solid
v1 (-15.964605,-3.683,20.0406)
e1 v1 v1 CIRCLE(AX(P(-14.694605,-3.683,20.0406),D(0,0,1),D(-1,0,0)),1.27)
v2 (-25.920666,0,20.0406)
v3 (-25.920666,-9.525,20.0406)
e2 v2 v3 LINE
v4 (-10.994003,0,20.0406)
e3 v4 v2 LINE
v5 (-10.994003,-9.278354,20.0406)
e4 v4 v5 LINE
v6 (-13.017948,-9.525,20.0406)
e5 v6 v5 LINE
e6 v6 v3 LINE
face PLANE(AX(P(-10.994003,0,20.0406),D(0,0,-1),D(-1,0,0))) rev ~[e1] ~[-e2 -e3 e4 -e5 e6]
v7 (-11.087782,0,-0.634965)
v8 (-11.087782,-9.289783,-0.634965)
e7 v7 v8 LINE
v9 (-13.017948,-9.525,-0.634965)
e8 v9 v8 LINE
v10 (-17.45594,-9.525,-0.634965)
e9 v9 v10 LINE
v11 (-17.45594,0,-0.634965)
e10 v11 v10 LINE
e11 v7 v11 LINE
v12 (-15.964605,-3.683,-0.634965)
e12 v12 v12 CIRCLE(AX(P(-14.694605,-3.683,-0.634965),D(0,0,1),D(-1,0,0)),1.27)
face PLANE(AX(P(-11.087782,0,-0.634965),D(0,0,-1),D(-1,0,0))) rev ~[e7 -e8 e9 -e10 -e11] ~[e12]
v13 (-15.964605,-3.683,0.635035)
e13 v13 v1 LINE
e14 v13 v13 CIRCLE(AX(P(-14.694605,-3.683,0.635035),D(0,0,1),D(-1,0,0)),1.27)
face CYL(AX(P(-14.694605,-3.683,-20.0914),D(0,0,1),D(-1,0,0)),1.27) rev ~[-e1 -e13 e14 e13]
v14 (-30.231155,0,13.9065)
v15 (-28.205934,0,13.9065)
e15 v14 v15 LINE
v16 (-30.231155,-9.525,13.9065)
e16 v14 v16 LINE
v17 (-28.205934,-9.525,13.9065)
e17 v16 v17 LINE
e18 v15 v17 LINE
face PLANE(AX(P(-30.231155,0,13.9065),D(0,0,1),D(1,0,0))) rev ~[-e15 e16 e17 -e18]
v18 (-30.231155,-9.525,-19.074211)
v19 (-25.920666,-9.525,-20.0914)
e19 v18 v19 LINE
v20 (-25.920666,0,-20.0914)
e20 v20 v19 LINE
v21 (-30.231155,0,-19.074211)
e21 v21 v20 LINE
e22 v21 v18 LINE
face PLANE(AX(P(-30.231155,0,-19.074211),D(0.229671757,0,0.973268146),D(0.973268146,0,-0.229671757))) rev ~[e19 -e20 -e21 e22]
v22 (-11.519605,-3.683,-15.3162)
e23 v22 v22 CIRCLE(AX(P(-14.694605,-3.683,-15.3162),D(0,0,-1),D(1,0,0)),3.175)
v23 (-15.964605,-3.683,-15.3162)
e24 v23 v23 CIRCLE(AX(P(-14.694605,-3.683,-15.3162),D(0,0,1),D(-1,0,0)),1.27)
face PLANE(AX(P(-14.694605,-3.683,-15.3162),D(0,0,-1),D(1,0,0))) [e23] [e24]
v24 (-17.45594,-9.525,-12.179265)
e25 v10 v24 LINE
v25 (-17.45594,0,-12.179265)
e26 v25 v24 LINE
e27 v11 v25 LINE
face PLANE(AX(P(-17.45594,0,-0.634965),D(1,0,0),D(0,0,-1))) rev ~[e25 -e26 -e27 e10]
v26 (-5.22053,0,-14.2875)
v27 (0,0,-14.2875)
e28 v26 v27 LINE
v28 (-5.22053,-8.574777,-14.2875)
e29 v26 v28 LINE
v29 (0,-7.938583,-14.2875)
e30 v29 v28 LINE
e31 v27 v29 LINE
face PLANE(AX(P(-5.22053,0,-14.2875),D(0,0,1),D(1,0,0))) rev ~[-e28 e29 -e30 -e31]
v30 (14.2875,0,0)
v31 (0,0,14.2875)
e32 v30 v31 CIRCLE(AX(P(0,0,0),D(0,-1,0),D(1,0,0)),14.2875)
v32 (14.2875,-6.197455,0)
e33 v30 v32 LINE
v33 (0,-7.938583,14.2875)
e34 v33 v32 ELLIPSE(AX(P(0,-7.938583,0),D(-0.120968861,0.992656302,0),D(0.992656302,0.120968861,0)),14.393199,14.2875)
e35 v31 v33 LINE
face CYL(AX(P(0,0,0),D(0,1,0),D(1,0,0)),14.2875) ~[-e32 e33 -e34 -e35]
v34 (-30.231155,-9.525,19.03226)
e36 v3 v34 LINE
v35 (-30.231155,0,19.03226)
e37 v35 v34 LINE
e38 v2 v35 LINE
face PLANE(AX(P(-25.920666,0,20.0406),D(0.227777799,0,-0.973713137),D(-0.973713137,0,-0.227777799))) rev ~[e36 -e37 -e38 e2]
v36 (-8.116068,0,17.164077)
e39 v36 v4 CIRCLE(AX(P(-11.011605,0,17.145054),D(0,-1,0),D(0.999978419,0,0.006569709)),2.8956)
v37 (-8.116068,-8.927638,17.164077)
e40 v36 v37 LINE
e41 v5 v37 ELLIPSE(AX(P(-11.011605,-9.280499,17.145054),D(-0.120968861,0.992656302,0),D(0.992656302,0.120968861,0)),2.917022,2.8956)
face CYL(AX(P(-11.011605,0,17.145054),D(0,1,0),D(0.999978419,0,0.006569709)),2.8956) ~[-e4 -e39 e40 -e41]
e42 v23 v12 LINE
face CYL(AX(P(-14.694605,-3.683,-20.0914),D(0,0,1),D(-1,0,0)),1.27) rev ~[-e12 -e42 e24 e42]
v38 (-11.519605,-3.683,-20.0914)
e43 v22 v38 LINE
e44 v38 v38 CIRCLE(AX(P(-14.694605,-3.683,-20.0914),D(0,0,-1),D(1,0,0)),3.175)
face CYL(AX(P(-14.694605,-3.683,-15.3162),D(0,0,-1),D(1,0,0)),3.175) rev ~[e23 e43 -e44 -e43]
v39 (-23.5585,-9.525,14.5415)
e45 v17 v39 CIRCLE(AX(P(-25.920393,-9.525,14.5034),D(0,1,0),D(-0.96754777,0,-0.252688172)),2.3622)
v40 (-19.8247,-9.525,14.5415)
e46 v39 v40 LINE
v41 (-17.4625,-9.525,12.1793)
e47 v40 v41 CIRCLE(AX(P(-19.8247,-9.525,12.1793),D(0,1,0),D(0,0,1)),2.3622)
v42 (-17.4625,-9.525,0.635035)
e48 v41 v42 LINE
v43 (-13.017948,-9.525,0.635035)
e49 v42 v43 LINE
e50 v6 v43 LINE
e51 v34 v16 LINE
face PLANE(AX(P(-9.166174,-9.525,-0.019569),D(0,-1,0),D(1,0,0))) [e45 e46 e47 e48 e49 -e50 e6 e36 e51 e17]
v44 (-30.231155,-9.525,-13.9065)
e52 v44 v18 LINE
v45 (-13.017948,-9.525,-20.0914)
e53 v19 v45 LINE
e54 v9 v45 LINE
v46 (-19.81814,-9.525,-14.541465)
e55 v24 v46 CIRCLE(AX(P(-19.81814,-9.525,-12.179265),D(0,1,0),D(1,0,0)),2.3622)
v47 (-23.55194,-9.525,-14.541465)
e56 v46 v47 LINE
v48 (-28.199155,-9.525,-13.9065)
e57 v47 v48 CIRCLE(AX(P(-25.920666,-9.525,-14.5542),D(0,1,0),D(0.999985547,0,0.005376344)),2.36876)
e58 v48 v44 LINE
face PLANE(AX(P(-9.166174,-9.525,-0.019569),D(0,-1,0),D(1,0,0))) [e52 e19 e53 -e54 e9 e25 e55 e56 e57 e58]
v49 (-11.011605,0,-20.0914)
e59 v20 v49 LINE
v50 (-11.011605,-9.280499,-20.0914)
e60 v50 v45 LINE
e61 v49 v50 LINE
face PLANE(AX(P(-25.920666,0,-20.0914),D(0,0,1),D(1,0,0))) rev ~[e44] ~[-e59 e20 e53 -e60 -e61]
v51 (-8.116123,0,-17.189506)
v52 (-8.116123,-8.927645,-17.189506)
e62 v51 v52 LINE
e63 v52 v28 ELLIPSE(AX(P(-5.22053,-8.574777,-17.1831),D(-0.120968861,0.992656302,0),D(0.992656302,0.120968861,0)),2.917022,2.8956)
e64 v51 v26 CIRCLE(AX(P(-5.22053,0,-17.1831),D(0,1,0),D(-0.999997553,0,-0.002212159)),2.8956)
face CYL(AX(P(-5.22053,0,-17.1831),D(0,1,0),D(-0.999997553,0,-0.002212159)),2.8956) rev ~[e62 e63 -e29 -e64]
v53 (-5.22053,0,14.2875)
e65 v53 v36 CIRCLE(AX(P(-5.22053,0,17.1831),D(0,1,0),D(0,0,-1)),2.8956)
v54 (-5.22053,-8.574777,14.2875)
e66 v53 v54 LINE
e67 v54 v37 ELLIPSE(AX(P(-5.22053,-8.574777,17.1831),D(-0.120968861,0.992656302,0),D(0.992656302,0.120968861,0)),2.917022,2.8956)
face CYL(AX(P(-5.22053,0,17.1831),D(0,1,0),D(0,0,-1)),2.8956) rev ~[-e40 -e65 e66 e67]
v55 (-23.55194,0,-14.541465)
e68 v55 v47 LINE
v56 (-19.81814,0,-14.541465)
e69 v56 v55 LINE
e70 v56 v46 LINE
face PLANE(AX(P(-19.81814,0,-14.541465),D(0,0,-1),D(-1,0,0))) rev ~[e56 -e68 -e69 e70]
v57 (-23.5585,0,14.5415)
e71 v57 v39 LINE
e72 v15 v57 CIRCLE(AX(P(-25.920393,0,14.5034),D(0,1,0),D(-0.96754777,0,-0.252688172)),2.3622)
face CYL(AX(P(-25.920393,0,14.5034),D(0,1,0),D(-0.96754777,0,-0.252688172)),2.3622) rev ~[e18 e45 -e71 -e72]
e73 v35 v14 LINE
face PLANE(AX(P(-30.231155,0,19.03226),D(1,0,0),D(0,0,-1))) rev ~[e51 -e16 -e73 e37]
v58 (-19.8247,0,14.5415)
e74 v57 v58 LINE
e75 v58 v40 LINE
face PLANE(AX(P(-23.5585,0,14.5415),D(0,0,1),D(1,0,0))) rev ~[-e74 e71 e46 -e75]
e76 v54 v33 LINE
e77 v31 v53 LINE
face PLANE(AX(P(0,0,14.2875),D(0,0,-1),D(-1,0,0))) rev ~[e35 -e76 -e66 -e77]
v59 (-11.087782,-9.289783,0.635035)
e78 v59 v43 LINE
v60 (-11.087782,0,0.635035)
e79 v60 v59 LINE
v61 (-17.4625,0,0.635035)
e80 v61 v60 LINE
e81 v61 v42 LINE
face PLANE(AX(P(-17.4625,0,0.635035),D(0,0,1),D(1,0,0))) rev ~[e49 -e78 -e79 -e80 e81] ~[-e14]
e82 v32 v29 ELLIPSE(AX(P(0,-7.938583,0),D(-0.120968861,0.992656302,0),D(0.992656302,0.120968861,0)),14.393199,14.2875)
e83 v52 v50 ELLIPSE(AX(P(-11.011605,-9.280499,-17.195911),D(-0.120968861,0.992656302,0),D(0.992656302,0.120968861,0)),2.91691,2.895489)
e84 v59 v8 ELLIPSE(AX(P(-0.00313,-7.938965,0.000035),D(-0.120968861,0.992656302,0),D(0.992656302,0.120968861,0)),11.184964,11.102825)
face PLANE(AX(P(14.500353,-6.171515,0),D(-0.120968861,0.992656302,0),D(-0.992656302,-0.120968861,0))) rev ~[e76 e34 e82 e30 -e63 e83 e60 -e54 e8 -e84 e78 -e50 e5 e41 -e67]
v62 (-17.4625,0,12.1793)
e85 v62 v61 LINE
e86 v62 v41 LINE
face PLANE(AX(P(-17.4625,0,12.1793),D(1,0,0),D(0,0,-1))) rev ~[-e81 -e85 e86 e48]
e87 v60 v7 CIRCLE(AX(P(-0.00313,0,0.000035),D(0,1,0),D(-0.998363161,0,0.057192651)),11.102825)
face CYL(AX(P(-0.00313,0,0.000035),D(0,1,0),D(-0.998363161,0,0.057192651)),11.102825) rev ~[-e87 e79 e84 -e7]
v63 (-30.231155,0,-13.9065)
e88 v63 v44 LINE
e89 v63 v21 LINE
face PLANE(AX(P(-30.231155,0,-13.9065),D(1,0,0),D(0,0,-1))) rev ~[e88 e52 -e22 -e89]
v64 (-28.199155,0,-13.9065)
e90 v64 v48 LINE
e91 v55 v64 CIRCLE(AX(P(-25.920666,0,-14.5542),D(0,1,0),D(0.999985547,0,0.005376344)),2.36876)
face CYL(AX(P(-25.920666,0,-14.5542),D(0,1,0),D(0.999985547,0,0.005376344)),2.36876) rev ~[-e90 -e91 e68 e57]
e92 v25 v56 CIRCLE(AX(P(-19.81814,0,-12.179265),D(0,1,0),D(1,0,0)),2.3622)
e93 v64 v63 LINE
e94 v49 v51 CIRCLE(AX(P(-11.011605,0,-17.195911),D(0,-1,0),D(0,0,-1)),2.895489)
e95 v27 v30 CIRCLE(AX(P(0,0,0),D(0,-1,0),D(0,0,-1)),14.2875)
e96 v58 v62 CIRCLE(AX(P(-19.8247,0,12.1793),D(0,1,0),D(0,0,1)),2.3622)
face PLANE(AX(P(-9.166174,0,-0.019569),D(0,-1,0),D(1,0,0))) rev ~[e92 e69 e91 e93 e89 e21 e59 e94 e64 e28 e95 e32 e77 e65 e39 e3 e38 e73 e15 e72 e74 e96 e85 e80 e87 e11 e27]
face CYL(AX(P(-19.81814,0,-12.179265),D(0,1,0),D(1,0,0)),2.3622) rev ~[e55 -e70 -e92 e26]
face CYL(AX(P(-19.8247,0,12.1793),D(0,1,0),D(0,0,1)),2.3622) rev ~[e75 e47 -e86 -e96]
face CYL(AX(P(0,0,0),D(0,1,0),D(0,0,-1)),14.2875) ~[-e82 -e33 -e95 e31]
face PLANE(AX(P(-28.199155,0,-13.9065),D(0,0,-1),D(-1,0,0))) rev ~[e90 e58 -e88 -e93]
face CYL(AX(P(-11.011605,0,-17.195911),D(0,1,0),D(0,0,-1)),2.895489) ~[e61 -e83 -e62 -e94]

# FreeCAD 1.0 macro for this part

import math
import FreeCAD as App
import Part
import Sketcher
Q = App.Units.Quantity


def add_polygon(sketch, points):
    """Adds a closed chain of lines whose ends are joined by coincident constraints."""
    first, n = sketch.GeometryCount, len(points)
    for a, b in zip(points, points[1:] + points[:1]):
        sketch.addGeometry(Part.LineSegment(App.Vector(*a, 0), App.Vector(*b, 0)), False)
    for i in range(n):
        sketch.addConstraint(Sketcher.Constraint("Coincident", first + i, 2, first + (i + 1) % n, 1))

doc = App.newDocument("Part")
body = doc.addObject("PartDesign::Body", "Body")

# Sketch on XZ plane
sketch1 = doc.addObject("Sketcher::SketchObject", "Sketch")
body.addObject(sketch1)
sketch1.AttachmentSupport = (doc.XZ_Plane, [""])
sketch1.MapMode = "FlatFace"
sketch1.addGeometry([
    Part.ArcOfCircle(Part.Circle(App.Vector(-25.9, 14.5, 0), App.Vector(0, 0, 1), 2.4), math.radians(1), math.radians(195)),  # 0
    Part.LineSegment(App.Vector(-23.6, 14.5, 0), App.Vector(-19.8, 14.5, 0)),  # 1
    Part.ArcOfCircle(Part.Circle(App.Vector(-19.8, 12.2, 0), App.Vector(0, 0, 1), 2.4), math.radians(0), math.radians(90)),  # 2
    Part.LineSegment(App.Vector(-17.5, 12.2, 0), App.Vector(-17.5, 0.6, 0)),  # 3
    Part.LineSegment(App.Vector(-17.5, 0.6, 0), App.Vector(-11.1, 0.6, 0)),  # 4
    Part.ArcOfCircle(Part.Circle(App.Vector(0, 0, 0), App.Vector(0, 0, 1), 11.1), math.radians(-177), math.radians(177)),  # 5
    Part.LineSegment(App.Vector(-11.1, -0.6, 0), App.Vector(-17.5, -0.6, 0)),  # 6
    Part.LineSegment(App.Vector(-17.5, -0.6, 0), App.Vector(-17.5, -12.2, 0)),  # 7
    Part.ArcOfCircle(Part.Circle(App.Vector(-19.8, -12.2, 0), App.Vector(0, 0, 1), 2.4), math.radians(-90), math.radians(0)),  # 8
    Part.LineSegment(App.Vector(-19.8, -14.5, 0), App.Vector(-23.6, -14.5, 0)),  # 9
    Part.ArcOfCircle(Part.Circle(App.Vector(-25.9, -14.6, 0), App.Vector(0, 0, 1), 2.4), math.radians(164), math.radians(360)),  # 10
    Part.LineSegment(App.Vector(-28.2, -13.9, 0), App.Vector(-30.2, -13.9, 0)),  # 11
    Part.LineSegment(App.Vector(-30.2, -13.9, 0), App.Vector(-30.2, -19.1, 0)),  # 12
    Part.LineSegment(App.Vector(-30.2, -19.1, 0), App.Vector(-25.9, -20.1, 0)),  # 13
    Part.LineSegment(App.Vector(-25.9, -20.1, 0), App.Vector(-11, -20.1, 0)),  # 14
    Part.ArcOfCircle(Part.Circle(App.Vector(-11, -17.2, 0), App.Vector(0, 0, 1), 2.9), math.radians(-90), math.radians(0)),  # 15
    Part.ArcOfCircle(Part.Circle(App.Vector(-5.2, -17.2, 0), App.Vector(0, 0, 1), 2.9), math.radians(90), math.radians(180)),  # 16
    Part.LineSegment(App.Vector(-5.2, -14.3, 0), App.Vector(0, -14.3, 0)),  # 17
    Part.ArcOfCircle(Part.Circle(App.Vector(0, 0, 0), App.Vector(0, 0, 1), 14.3), math.radians(-90), math.radians(0)),  # 18
    Part.ArcOfCircle(Part.Circle(App.Vector(0, 0, 0), App.Vector(0, 0, 1), 14.3), math.radians(0), math.radians(90)),  # 19
    Part.LineSegment(App.Vector(0, 14.3, 0), App.Vector(-5.2, 14.3, 0)),  # 20
    Part.ArcOfCircle(Part.Circle(App.Vector(-5.2, 17.2, 0), App.Vector(0, 0, 1), 2.9), math.radians(-180), math.radians(-90)),  # 21
    Part.ArcOfCircle(Part.Circle(App.Vector(-11, 17.1, 0), App.Vector(0, 0, 1), 2.9), math.radians(0), math.radians(90)),  # 22
    Part.LineSegment(App.Vector(-11, 20, 0), App.Vector(-25.9, 20, 0)),  # 23
    Part.LineSegment(App.Vector(-25.9, 20, 0), App.Vector(-30.2, 19, 0)),  # 24
    Part.LineSegment(App.Vector(-30.2, 19, 0), App.Vector(-30.2, 13.9, 0)),  # 25
    Part.LineSegment(App.Vector(-30.2, 13.9, 0), App.Vector(-28.2, 13.9, 0)),  # 26
], False)
sketch1.addConstraint([
    Sketcher.Constraint("Coincident", 0, 1, 1, 1),
    Sketcher.Constraint("Tangent", 1, 2, 2, 2),
    Sketcher.Constraint("Tangent", 2, 1, 3, 1),
    Sketcher.Constraint("Coincident", 3, 2, 4, 1),
    Sketcher.Constraint("Coincident", 4, 2, 5, 2),
    Sketcher.Constraint("Coincident", 5, 1, 6, 1),
    Sketcher.Constraint("Coincident", 6, 2, 7, 1),
    Sketcher.Constraint("Tangent", 7, 2, 8, 2),
    Sketcher.Constraint("Tangent", 8, 1, 9, 1),
    Sketcher.Constraint("Coincident", 9, 2, 10, 2),
    Sketcher.Constraint("Coincident", 10, 1, 11, 1),
    Sketcher.Constraint("Coincident", 11, 2, 12, 1),
    Sketcher.Constraint("Coincident", 12, 2, 13, 1),
    Sketcher.Constraint("Coincident", 13, 2, 14, 1),
    Sketcher.Constraint("Tangent", 14, 2, 15, 1),
    Sketcher.Constraint("Tangent", 15, 2, 16, 2),
    Sketcher.Constraint("Tangent", 16, 1, 17, 1),
    Sketcher.Constraint("Tangent", 17, 2, 18, 1),
    Sketcher.Constraint("Tangent", 18, 2, 19, 1),
    Sketcher.Constraint("Tangent", 19, 2, 20, 1),
    Sketcher.Constraint("Tangent", 20, 2, 21, 2),
    Sketcher.Constraint("Tangent", 21, 1, 22, 1),
    Sketcher.Constraint("Coincident", 22, 2, 23, 1),
    Sketcher.Constraint("Coincident", 23, 2, 24, 1),
    Sketcher.Constraint("Coincident", 24, 2, 25, 1),
    Sketcher.Constraint("Coincident", 25, 2, 26, 1),
    Sketcher.Constraint("Coincident", 26, 2, 0, 2),
    Sketcher.Constraint("Horizontal", 1),
    Sketcher.Constraint("Vertical", 3),
    Sketcher.Constraint("Horizontal", 4),
    Sketcher.Constraint("Horizontal", 6),
    Sketcher.Constraint("Vertical", 7),
    Sketcher.Constraint("Horizontal", 9),
    Sketcher.Constraint("Horizontal", 11),
    Sketcher.Constraint("Vertical", 12),
    Sketcher.Constraint("Horizontal", 14),
    Sketcher.Constraint("Horizontal", 17),
    Sketcher.Constraint("Horizontal", 20),
    Sketcher.Constraint("Horizontal", 23),
    Sketcher.Constraint("Vertical", 25),
    Sketcher.Constraint("Horizontal", 26),
    Sketcher.Constraint("Coincident", 18, 3, -1, 1),
    Sketcher.Constraint("Equal", 0, 2),
    Sketcher.Constraint("Equal", 2, 8),
    Sketcher.Constraint("Equal", 18, 19),
    Sketcher.Constraint("Equal", 16, 21),
    Sketcher.Constraint("Equal", 21, 22),
    Sketcher.Constraint("Symmetric", 11, 2, 25, 2, -1),
    Sketcher.Constraint("PointOnObject", 18, 2, -1),
    Sketcher.Constraint("Vertical", 16, 3, 21, 3),
    Sketcher.Constraint("Vertical", 15, 3, 22, 3),
    Sketcher.Constraint("Vertical", 4, 2, 5, 1),
    Sketcher.Constraint("Vertical", 10, 3, 13, 2),
    Sketcher.Constraint("Vertical", 13, 2, 23, 2),
    Sketcher.Constraint("Equal", 1, 9),
    Sketcher.Constraint("Radius", 0, Q("0.093 in")),
    Sketcher.Constraint("Radius", 16, Q("0.114 in")),
    Sketcher.Constraint("Radius", 18, Q("0.5625 in")),
    Sketcher.Constraint("DistanceX", 11, 2, 11, 1, Q("0.08 in")),
    Sketcher.Constraint("DistanceX", 1, 1, 1, 2, Q("0.147 in")),
    Sketcher.Constraint("DistanceY", 5, 1, 4, 2, Q("0.05 in")),
    Sketcher.Constraint("DistanceY", 20, 2, 1, 2, Q("0.01 in")),
    Sketcher.Constraint("DistanceY", 7, 2, 7, 1, Q("0.4545 in")),
    Sketcher.Constraint("DistanceY", -1, 1, 0, 3, Q("0.571 in")),
    Sketcher.Constraint("DistanceY", 10, 3, -1, 1, Q("0.573 in")),
    Sketcher.Constraint("DistanceX", 2, 1, -1, 1, Q("0.6875 in")),
    Sketcher.Constraint("DistanceY", 13, 2, -1, 1, Q("0.791 in")),
    Sketcher.Constraint("DistanceY", -1, 1, 22, 2, Q("0.789 in")),
    Sketcher.Constraint("Radius", 10, 2.36876),
    Sketcher.Constraint("DistanceY", 25, 2, 0, 1, Q("0.025 in")),
    Sketcher.Constraint("Radius", 5, 11.102825),
    Sketcher.Constraint("DistanceX", 4, 1, 4, 2, 6.374718),
    Sketcher.Constraint("DistanceX", 14, 1, 14, 2, 14.909061),
    Sketcher.Constraint("DistanceX", 17, 1, 17, 2, 5.22053),
    Sketcher.Constraint("DistanceY", 12, 2, 12, 1, 5.167711),
    Sketcher.Constraint("DistanceY", 25, 2, 25, 1, 5.12576),
    Sketcher.Constraint("DistanceX", 23, 2, 23, 1, 14.926663),
    Sketcher.Constraint("DistanceY", 3, 2, 3, 1, 11.544265),
])
pad1 = doc.addObject("PartDesign::Pad", "Pad")
body.addObject(pad1)
pad1.Profile = sketch1
pad1.Length = Q("0.375 in")

# Sketch on XY plane
sketch2 = doc.addObject("Sketcher::SketchObject", "Sketch001")
body.addObject(sketch2)
sketch2.AttachmentSupport = (doc.XY_Plane, [""])
sketch2.MapMode = "FlatFace"
sketch2.AttachmentOffset = App.Placement(App.Vector(0, 0, -0.791 * 25.4), App.Rotation())
sketch2.addGeometry(Part.Circle(App.Vector(-14.7, -3.7, 0), App.Vector(0, 0, 1), 1.3), False)
sketch2.addConstraint([
    Sketcher.Constraint("Diameter", 0, Q("0.1 in")),
    Sketcher.Constraint("DistanceY", 0, 3, -1, 1, Q("0.145 in")),
    Sketcher.Constraint("DistanceX", 0, 3, -1, 1, 14.694605),
])
doc.recompute()
hole = doc.addObject("PartDesign::Hole", "Hole")
body.addObject(hole)
hole.Profile = sketch2
hole.ThreadType = "None"
hole.Diameter = Q("0.1 in")
hole.DepthType = "ThroughAll"
hole.HoleCutType = "Counterbore"
hole.HoleCutDiameter = Q("0.25 in")
hole.HoleCutDepth = Q("0.188 in")
hole.Reversed = True

# Sketch on XY plane
sketch3 = doc.addObject("Sketcher::SketchObject", "Sketch002")
body.addObject(sketch3)
sketch3.AttachmentSupport = (doc.XY_Plane, [""])
sketch3.MapMode = "FlatFace"
add_polygon(sketch3, [(14.5, -6.2), (-13.6, -9.6), (14.5, -10)])  # lines 0-2
sketch3.addConstraint([
    Sketcher.Constraint("Vertical", 2),
    Sketcher.Constraint("Distance", 0, Q("1.1155002 in")),
    Sketcher.Constraint("DistanceY", 2, 1, 2, 2, 3.848117),
    Sketcher.Constraint("DistanceY", 0, 2, -1, 1, 9.599011),
    Sketcher.Constraint("DistanceX", 0, 2, 1, 2, 28.125631),
    Sketcher.Constraint("DistanceX", 0, 2, -1, 1, 13.625277),
])
pocket1 = doc.addObject("PartDesign::Pocket", "Pocket")
body.addObject(pocket1)
pocket1.Profile = sketch3
pocket1.Length = Q("1.6 in")
pocket1.Midplane = True

doc.recompute()
